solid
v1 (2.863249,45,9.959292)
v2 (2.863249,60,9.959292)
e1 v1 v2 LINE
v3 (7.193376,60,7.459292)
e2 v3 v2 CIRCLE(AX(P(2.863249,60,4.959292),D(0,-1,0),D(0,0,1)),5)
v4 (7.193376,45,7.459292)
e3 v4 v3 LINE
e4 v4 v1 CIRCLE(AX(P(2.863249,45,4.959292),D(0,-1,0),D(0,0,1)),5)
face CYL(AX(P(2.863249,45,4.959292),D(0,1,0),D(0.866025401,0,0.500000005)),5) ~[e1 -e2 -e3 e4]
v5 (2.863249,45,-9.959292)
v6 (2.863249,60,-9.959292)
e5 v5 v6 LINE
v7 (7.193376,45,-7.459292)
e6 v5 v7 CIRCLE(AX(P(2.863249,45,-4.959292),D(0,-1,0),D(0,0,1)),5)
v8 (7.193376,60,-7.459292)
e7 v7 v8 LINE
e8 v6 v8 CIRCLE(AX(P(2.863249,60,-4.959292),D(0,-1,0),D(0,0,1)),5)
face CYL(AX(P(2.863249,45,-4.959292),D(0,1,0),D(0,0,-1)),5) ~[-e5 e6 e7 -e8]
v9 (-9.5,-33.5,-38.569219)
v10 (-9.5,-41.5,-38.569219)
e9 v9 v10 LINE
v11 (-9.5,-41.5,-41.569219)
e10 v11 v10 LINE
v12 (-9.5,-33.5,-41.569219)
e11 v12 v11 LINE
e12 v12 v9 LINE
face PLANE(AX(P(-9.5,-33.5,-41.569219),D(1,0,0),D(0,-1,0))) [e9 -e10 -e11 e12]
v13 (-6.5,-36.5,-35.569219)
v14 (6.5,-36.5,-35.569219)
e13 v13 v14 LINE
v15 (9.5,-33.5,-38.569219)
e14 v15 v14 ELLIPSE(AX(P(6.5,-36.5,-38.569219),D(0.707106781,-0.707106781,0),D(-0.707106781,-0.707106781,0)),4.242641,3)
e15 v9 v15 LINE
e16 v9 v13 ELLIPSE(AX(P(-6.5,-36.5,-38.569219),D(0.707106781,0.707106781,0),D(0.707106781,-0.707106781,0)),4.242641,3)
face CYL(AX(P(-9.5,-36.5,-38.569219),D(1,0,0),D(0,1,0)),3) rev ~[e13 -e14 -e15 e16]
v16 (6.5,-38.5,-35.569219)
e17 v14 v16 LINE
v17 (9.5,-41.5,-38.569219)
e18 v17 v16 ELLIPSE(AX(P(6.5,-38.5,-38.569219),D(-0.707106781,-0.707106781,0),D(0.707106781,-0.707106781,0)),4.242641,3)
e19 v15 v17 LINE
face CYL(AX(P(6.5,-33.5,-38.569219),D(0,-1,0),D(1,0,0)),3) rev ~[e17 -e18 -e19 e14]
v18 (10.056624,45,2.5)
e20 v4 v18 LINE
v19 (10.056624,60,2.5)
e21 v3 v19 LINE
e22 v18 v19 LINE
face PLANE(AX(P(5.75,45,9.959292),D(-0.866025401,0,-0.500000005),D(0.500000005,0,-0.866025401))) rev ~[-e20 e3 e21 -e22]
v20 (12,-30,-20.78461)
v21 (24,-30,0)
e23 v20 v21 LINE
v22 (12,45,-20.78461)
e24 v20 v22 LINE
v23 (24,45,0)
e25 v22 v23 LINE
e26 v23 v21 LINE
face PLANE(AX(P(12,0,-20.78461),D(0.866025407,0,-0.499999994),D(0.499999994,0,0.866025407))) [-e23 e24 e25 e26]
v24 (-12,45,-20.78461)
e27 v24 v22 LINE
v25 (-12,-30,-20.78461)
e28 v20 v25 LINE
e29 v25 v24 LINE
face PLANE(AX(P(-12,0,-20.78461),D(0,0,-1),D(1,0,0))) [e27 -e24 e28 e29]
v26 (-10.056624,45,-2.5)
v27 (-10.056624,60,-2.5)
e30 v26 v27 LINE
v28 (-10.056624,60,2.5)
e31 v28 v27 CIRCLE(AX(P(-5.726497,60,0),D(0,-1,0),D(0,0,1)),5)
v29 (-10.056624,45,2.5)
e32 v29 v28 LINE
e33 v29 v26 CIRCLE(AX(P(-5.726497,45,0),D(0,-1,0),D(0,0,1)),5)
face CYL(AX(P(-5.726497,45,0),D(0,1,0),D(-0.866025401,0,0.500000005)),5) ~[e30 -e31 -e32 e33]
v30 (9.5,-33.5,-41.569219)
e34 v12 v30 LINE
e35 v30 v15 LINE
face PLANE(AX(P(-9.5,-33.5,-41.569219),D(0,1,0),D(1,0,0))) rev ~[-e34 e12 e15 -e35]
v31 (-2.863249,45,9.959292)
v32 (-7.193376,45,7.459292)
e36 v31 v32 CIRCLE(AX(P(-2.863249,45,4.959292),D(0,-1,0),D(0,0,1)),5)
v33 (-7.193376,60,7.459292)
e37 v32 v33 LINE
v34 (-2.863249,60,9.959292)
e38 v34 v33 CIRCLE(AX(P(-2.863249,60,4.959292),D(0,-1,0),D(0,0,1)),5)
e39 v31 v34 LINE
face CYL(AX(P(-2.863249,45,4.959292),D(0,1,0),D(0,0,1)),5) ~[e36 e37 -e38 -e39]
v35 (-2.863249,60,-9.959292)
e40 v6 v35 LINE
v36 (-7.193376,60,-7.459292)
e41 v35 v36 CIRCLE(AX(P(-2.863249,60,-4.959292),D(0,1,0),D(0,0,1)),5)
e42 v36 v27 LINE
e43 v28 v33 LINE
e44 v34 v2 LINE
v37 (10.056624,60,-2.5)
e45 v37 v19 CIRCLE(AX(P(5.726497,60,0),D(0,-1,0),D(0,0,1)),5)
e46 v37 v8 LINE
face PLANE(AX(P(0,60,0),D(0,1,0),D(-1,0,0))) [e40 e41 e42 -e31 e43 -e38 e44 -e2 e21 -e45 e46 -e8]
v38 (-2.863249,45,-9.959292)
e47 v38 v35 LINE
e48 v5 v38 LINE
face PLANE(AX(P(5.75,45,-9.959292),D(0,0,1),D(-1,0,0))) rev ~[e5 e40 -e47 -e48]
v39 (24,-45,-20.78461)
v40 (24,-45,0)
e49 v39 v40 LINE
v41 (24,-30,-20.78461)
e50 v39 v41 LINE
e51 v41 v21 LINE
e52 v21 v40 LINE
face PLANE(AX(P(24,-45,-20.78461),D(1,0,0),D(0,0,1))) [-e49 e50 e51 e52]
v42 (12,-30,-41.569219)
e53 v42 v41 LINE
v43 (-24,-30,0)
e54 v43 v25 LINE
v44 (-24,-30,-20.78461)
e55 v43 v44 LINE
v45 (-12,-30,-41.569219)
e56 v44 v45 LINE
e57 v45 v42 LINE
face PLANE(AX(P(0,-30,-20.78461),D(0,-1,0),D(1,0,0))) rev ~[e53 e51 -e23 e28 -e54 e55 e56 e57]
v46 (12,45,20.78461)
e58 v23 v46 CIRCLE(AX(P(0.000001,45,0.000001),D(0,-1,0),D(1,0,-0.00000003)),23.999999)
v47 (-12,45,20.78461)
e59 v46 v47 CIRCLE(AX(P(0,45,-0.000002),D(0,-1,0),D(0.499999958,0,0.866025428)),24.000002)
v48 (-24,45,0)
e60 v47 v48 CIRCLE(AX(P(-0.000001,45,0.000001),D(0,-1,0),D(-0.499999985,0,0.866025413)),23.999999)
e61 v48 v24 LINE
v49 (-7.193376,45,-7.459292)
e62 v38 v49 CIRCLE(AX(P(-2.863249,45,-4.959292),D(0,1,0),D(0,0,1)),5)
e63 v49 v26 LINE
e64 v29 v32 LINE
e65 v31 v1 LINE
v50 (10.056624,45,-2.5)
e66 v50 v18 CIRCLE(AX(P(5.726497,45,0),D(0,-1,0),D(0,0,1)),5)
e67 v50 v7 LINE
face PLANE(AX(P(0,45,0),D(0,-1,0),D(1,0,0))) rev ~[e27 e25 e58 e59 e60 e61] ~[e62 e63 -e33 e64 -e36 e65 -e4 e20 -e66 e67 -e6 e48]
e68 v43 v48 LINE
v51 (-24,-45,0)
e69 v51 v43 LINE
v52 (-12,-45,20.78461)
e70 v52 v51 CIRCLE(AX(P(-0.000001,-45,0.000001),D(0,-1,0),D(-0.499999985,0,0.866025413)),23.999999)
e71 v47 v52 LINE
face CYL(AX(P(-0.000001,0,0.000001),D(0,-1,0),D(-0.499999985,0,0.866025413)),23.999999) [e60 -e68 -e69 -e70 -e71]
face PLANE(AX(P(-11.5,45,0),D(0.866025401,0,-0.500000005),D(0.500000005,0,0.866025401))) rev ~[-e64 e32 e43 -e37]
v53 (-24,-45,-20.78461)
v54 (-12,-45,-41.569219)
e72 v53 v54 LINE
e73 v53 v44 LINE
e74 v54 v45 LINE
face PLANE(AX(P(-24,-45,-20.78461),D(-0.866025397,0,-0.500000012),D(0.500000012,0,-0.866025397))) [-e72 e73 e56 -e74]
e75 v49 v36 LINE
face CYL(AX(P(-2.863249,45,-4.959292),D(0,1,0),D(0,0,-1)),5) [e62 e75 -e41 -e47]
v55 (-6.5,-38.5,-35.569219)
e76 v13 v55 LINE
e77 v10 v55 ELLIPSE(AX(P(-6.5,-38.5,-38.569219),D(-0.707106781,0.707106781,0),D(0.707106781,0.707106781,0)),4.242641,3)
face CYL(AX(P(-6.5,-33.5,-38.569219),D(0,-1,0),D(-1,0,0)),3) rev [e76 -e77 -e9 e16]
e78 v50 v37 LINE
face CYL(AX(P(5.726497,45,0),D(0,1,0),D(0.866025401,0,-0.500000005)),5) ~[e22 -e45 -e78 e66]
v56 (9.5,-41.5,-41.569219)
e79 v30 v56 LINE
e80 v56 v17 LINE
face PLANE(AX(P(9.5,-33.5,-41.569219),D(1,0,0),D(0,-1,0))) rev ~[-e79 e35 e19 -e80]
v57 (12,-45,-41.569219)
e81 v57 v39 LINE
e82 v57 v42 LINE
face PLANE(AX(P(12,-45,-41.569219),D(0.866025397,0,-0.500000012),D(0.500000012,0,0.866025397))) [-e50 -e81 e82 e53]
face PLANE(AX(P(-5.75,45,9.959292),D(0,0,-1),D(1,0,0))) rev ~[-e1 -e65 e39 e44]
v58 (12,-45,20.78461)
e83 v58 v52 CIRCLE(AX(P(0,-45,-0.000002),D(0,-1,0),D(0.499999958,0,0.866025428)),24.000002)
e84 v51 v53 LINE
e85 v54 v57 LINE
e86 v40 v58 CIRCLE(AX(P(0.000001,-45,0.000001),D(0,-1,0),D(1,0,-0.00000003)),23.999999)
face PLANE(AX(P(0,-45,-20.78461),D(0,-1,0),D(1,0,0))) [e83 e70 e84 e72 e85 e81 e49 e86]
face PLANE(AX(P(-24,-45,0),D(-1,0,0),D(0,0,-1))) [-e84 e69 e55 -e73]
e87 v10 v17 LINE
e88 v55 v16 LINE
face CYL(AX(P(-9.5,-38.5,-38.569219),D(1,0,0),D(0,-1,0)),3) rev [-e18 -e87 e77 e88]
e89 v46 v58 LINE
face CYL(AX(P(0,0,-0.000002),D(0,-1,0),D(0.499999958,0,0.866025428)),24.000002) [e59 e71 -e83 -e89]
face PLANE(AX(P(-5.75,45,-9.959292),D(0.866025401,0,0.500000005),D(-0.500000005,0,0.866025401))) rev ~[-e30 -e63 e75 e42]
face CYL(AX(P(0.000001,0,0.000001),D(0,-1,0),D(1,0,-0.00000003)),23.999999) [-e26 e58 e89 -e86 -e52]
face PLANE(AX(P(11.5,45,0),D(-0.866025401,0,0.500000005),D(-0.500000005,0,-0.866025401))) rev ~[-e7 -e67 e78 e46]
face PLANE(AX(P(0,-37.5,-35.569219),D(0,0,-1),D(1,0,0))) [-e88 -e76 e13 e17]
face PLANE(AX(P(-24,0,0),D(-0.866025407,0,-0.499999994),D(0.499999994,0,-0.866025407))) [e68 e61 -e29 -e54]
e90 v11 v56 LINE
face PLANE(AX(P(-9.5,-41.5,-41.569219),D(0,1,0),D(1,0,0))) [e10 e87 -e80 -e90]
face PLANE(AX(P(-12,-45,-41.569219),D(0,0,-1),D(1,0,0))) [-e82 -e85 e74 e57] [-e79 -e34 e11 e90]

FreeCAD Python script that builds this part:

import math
import FreeCAD as App
import Part
import Sketcher
from FreeCAD import Vector
Q = App.Units.Quantity


def edges_at(feature, points):
    """Names of the edges that pass closest to the given points."""
    edges = feature.Shape.Edges
    near = lambda p: min(range(len(edges)), key=lambda i: edges[i].distToShape(Part.Vertex(*p))[0])
    return sorted({f"Edge{near(p) + 1}" for p in points})

doc = App.newDocument("Part")
body = doc.addObject("PartDesign::Body", "Body")

sketch1 = doc.addObject("Sketcher::SketchObject", "Sketch")
body.addObject(sketch1)
sketch1.AttachmentSupport = (doc.XZ_Plane, [""])
sketch1.MapMode = "FlatFace"
sketch1.addGeometry([
    Part.LineSegment(Vector(12, -21, 0), Vector(24, 0, 0)),
    Part.ArcOfCircle(Part.Circle(Vector(0, 0, 0), Vector(0, 0, 1), 24), math.radians(0), math.radians(60)),
    Part.ArcOfCircle(Part.Circle(Vector(0, 0, 0), Vector(0, 0, 1), 24), math.radians(60), math.radians(120)),
    Part.ArcOfCircle(Part.Circle(Vector(0, 0, 0), Vector(0, 0, 1), 24), math.radians(120), math.radians(180)),
    Part.LineSegment(Vector(-24, 0, 0), Vector(-12, -21, 0)),
    Part.LineSegment(Vector(-12, -21, 0), Vector(12, -21, 0)),
], False)
sketch1.addConstraint([
    Sketcher.Constraint("Coincident", 0, 2, 1, 1),
    Sketcher.Constraint("Tangent", 1, 2, 2, 1),
    Sketcher.Constraint("Tangent", 2, 2, 3, 1),
    Sketcher.Constraint("Coincident", 3, 2, 4, 1),
    Sketcher.Constraint("Coincident", 4, 2, 5, 1),
    Sketcher.Constraint("Coincident", 5, 2, 0, 1),
    Sketcher.Constraint("Horizontal", 5),
    Sketcher.Constraint("Coincident", 1, 3, -1, 1),
    Sketcher.Constraint("Coincident", 3, 3, -1, 1),
    Sketcher.Constraint("Symmetric", 1, 2, 4, 2, -1, 1),
    Sketcher.Constraint("Symmetric", 2, 2, 5, 2, -1, 1),
    Sketcher.Constraint("PointOnObject", 0, 2, -1),
    Sketcher.Constraint("PointOnObject", 3, 2, -1),
    Sketcher.Constraint("Radius", 1, Q("23.999999 mm")),
    Sketcher.Constraint("DistanceX", 5, 1, 5, 2, Q("24 mm")),
])
pad1 = doc.addObject("PartDesign::Pad", "Pad")
body.addObject(pad1)
pad1.Profile = sketch1
pad1.Length = 90
pad1.Midplane = True

sketch2 = doc.addObject("Sketcher::SketchObject", "Sketch001")
body.addObject(sketch2)
sketch2.AttachmentSupport = (doc.XZ_Plane, [""])
sketch2.MapMode = "FlatFace"
sketch2.AttachmentOffset = App.Placement(Vector(0, 0, 45), App.Rotation())
sketch2.addGeometry([
    Part.LineSegment(Vector(-12, -42, 0), Vector(12, -42, 0)),
    Part.LineSegment(Vector(12, -42, 0), Vector(24, -21, 0)),
    Part.LineSegment(Vector(24, -21, 0), Vector(24, 0, 0)),
    Part.LineSegment(Vector(24, 0, 0), Vector(18, -10, 0)),
    Part.LineSegment(Vector(18, -10, 0), Vector(12, 0, 0)),
    Part.LineSegment(Vector(12, 0, 0), Vector(-12, 0, 0)),
    Part.LineSegment(Vector(-12, 0, 0), Vector(-18, -10, 0)),
    Part.LineSegment(Vector(-18, -10, 0), Vector(-24, 0, 0)),
    Part.LineSegment(Vector(-24, 0, 0), Vector(-24, -21, 0)),
    Part.LineSegment(Vector(-24, -21, 0), Vector(-12, -42, 0)),
], False)
sketch2.addConstraint([
    Sketcher.Constraint("Coincident", 0, 2, 1, 1),
    Sketcher.Constraint("Coincident", 1, 2, 2, 1),
    Sketcher.Constraint("Coincident", 2, 2, 3, 1),
    Sketcher.Constraint("Coincident", 3, 2, 4, 1),
    Sketcher.Constraint("Coincident", 4, 2, 5, 1),
    Sketcher.Constraint("Coincident", 5, 2, 6, 1),
    Sketcher.Constraint("Coincident", 6, 2, 7, 1),
    Sketcher.Constraint("Coincident", 7, 2, 8, 1),
    Sketcher.Constraint("Coincident", 8, 2, 9, 1),
    Sketcher.Constraint("Coincident", 9, 2, 0, 1),
    Sketcher.Constraint("Horizontal", 0),
    Sketcher.Constraint("Vertical", 2),
    Sketcher.Constraint("Horizontal", 5),
    Sketcher.Constraint("Vertical", 8),
    Sketcher.Constraint("Symmetric", 4, 2, 5, 2, -1, 1),
    Sketcher.Constraint("Symmetric", 2, 2, 7, 2, -1, 1),
    Sketcher.Constraint("Symmetric", 3, 2, 6, 2, -2),
    Sketcher.Constraint("PointOnObject", 2, 2, -1),
    Sketcher.Constraint("Parallel", 1, 3),
    Sketcher.Constraint("Parallel", 3, 6),
    Sketcher.Constraint("Parallel", 7, 9),
    Sketcher.Constraint("Horizontal", 1, 2, 8, 2),
    Sketcher.Constraint("Vertical", 0, 2, 4, 2),
    Sketcher.Constraint("DistanceX", 0, 1, 0, 2, Q("24 mm")),
    Sketcher.Constraint("Angle", 1, Q("59.999999 deg")),
    Sketcher.Constraint("Distance", 1, Q("23.999999 mm")),
    Sketcher.Constraint("DistanceY", 2, 1, 2, 2, Q("20.78461 mm")),
])
pad2 = doc.addObject("PartDesign::Pad", "Pad001")
body.addObject(pad2)
pad2.Profile = sketch2
pad2.Length = 15
pad2.Reversed = True

sketch3 = doc.addObject("Sketcher::SketchObject", "Sketch002")
body.addObject(sketch3)
sketch3.AttachmentSupport = (doc.XY_Plane, [""])
sketch3.MapMode = "FlatFace"
sketch3.AttachmentOffset = App.Placement(Vector(0, 0, -41.569219), App.Rotation())
sketch3.addGeometry([
    Part.LineSegment(Vector(-10, -42, 0), Vector(-10, -34, 0)),
    Part.LineSegment(Vector(-10, -34, 0), Vector(10, -34, 0)),
    Part.LineSegment(Vector(10, -34, 0), Vector(10, -42, 0)),
    Part.LineSegment(Vector(10, -42, 0), Vector(-10, -42, 0)),
], False)
sketch3.addConstraint([
    Sketcher.Constraint("Coincident", 0, 2, 1, 1),
    Sketcher.Constraint("Coincident", 1, 2, 2, 1),
    Sketcher.Constraint("Coincident", 2, 2, 3, 1),
    Sketcher.Constraint("Coincident", 3, 2, 0, 1),
    Sketcher.Constraint("Vertical", 0),
    Sketcher.Constraint("Horizontal", 1),
    Sketcher.Constraint("Vertical", 2),
    Sketcher.Constraint("Horizontal", 3),
    Sketcher.Constraint("DistanceX", 1, 1, 1, 2, Q("19 mm")),
    Sketcher.Constraint("DistanceY", 0, 1, 0, 2, Q("8 mm")),
    Sketcher.Constraint("DistanceX", 0, 2, -1, 1, Q("9.5 mm")),
    Sketcher.Constraint("DistanceY", 0, 2, -1, 1, Q("33.5 mm")),
])
pocket1 = doc.addObject("PartDesign::Pocket", "Pocket")
body.addObject(pocket1)
pocket1.Profile = sketch3
pocket1.Length = 6
pocket1.Reversed = True

sketch4 = doc.addObject("Sketcher::SketchObject", "Sketch003")
body.addObject(sketch4)
sketch4.AttachmentSupport = (doc.XZ_Plane, [""])
sketch4.MapMode = "FlatFace"
sketch4.AttachmentOffset = App.Placement(Vector(0, 0, -45), App.Rotation())
sketch4.addGeometry([
    Part.LineSegment(Vector(-6, -10, 0), Vector(-12, 0, 0)),
    Part.LineSegment(Vector(-12, 0, 0), Vector(-6, 10, 0)),
    Part.LineSegment(Vector(-6, 10, 0), Vector(6, 10, 0)),
    Part.LineSegment(Vector(6, 10, 0), Vector(12, 0, 0)),
    Part.LineSegment(Vector(12, 0, 0), Vector(6, -10, 0)),
    Part.LineSegment(Vector(6, -10, 0), Vector(-6, -10, 0)),
], False)
sketch4.addConstraint([
    Sketcher.Constraint("Coincident", 0, 2, 1, 1),
    Sketcher.Constraint("Coincident", 1, 2, 2, 1),
    Sketcher.Constraint("Coincident", 2, 2, 3, 1),
    Sketcher.Constraint("Coincident", 3, 2, 4, 1),
    Sketcher.Constraint("Coincident", 4, 2, 5, 1),
    Sketcher.Constraint("Coincident", 5, 2, 0, 1),
    Sketcher.Constraint("Horizontal", 2),
    Sketcher.Constraint("Horizontal", 5),
    Sketcher.Constraint("Symmetric", 0, 2, 3, 2, -1, 1),
    Sketcher.Constraint("Symmetric", 1, 2, 4, 2, -1, 1),
    Sketcher.Constraint("PointOnObject", 0, 2, -1),
    Sketcher.Constraint("Parallel", 0, 3),
    Sketcher.Constraint("Vertical", 2, 2, 4, 2),
    Sketcher.Constraint("Angle", 0, Q("120 deg")),
    Sketcher.Constraint("DistanceX", 2, 1, 2, 2, Q("11.5 mm")),
    Sketcher.Constraint("DistanceX", 0, 2, 3, 2, Q("23 mm")),
])
pad3 = doc.addObject("PartDesign::Pad", "Pad002")
body.addObject(pad3)
pad3.Profile = sketch4
pad3.Length = 15
pad3.Reversed = True
doc.recompute()

fillet = doc.addObject("PartDesign::Fillet", "Fillet")
body.addObject(fillet)
fillet.Base = (pad3, edges_at(pad3, [
    (9.5, -37.5, -35.569),
    (0, -41.5, -35.569),
    (-9.5, -37.5, -35.569),
    (0, -33.5, -35.569),
]))
fillet.Radius = 3
doc.recompute()

fillet2 = doc.addObject("PartDesign::Fillet", "Fillet001")
body.addObject(fillet2)
fillet2.Base = (fillet, edges_at(fillet, [
    (11.5, 52.5, 0),
    (5.75, 52.5, 9.959),
    (-5.75, 52.5, 9.959),
    (-11.5, 52.5, 0),
    (-5.75, 52.5, -9.959),
    (5.75, 52.5, -9.959),
]))
fillet2.Radius = 5

doc.recompute()
